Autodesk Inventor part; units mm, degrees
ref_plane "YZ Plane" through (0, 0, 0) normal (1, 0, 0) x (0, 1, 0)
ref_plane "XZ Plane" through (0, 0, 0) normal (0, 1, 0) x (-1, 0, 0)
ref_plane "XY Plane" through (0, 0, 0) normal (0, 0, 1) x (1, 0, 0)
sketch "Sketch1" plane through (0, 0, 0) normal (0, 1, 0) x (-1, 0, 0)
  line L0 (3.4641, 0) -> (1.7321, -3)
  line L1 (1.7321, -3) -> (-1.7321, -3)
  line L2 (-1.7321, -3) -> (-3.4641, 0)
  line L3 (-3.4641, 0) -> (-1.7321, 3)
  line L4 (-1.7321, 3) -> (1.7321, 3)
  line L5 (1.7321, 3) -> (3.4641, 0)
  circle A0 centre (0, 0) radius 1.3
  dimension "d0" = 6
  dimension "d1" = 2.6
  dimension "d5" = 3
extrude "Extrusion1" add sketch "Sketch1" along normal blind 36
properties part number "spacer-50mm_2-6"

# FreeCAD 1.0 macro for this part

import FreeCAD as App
import Part
import Sketcher
from FreeCAD import Vector
Q = App.Units.Quantity

doc = App.newDocument("Part")
body = doc.addObject("PartDesign::Body", "Body")

sketch1 = body.newObject("Sketcher::SketchObject", "Sketch")
sketch1.AttachmentSupport = (doc.getObject("XZ_Plane"), [""])
sketch1.MapMode = "FlatFace"
sketch1.addGeometry([
    Part.LineSegment(Vector(-1.7, -3, 0), Vector(-3.5, 0, 0)),
    Part.LineSegment(Vector(-3.5, 0, 0), Vector(-1.7, 3, 0)),
    Part.LineSegment(Vector(-1.7, 3, 0), Vector(1.7, 3, 0)),
    Part.LineSegment(Vector(1.7, 3, 0), Vector(3.5, 0, 0)),
    Part.LineSegment(Vector(3.5, 0, 0), Vector(1.7, -3, 0)),
    Part.LineSegment(Vector(1.7, -3, 0), Vector(-1.7, -3, 0)),
    Part.Circle(Vector(0, 0, 0), Vector(0, 0, 1), 1.3),
], False)
sketch1.addConstraint([
    Sketcher.Constraint("Coincident", 0, 2, 1, 1),
    Sketcher.Constraint("Coincident", 1, 2, 2, 1),
    Sketcher.Constraint("Coincident", 2, 2, 3, 1),
    Sketcher.Constraint("Coincident", 3, 2, 4, 1),
    Sketcher.Constraint("Coincident", 4, 2, 5, 1),
    Sketcher.Constraint("Coincident", 5, 2, 0, 1),
    Sketcher.Constraint("Horizontal", 2),
    Sketcher.Constraint("Horizontal", 5),
    Sketcher.Constraint("Coincident", 6, 3, -1, 1),
    Sketcher.Constraint("Symmetric", 0, 2, 3, 2, -1, 1),
    Sketcher.Constraint("Symmetric", 1, 2, 4, 2, -1, 1),
    Sketcher.Constraint("PointOnObject", 0, 2, -1),
    Sketcher.Constraint("Parallel", 0, 3),
    Sketcher.Constraint("Vertical", 2, 2, 4, 2),
    Sketcher.Constraint("Diameter", 6, 2.6),
    Sketcher.Constraint("DistanceY", -1, 1, 1, 2, 3.0),
    Sketcher.Constraint("Angle", 0, Q("119.9993 deg")),
    Sketcher.Constraint("DistanceX", 2, 1, 2, 2, 3.4642),
])
pad1 = body.newObject("PartDesign::Pad", "Pad")
pad1.Profile = sketch1
pad1.Length = 36
pad1.Reversed = True

doc.recompute()
